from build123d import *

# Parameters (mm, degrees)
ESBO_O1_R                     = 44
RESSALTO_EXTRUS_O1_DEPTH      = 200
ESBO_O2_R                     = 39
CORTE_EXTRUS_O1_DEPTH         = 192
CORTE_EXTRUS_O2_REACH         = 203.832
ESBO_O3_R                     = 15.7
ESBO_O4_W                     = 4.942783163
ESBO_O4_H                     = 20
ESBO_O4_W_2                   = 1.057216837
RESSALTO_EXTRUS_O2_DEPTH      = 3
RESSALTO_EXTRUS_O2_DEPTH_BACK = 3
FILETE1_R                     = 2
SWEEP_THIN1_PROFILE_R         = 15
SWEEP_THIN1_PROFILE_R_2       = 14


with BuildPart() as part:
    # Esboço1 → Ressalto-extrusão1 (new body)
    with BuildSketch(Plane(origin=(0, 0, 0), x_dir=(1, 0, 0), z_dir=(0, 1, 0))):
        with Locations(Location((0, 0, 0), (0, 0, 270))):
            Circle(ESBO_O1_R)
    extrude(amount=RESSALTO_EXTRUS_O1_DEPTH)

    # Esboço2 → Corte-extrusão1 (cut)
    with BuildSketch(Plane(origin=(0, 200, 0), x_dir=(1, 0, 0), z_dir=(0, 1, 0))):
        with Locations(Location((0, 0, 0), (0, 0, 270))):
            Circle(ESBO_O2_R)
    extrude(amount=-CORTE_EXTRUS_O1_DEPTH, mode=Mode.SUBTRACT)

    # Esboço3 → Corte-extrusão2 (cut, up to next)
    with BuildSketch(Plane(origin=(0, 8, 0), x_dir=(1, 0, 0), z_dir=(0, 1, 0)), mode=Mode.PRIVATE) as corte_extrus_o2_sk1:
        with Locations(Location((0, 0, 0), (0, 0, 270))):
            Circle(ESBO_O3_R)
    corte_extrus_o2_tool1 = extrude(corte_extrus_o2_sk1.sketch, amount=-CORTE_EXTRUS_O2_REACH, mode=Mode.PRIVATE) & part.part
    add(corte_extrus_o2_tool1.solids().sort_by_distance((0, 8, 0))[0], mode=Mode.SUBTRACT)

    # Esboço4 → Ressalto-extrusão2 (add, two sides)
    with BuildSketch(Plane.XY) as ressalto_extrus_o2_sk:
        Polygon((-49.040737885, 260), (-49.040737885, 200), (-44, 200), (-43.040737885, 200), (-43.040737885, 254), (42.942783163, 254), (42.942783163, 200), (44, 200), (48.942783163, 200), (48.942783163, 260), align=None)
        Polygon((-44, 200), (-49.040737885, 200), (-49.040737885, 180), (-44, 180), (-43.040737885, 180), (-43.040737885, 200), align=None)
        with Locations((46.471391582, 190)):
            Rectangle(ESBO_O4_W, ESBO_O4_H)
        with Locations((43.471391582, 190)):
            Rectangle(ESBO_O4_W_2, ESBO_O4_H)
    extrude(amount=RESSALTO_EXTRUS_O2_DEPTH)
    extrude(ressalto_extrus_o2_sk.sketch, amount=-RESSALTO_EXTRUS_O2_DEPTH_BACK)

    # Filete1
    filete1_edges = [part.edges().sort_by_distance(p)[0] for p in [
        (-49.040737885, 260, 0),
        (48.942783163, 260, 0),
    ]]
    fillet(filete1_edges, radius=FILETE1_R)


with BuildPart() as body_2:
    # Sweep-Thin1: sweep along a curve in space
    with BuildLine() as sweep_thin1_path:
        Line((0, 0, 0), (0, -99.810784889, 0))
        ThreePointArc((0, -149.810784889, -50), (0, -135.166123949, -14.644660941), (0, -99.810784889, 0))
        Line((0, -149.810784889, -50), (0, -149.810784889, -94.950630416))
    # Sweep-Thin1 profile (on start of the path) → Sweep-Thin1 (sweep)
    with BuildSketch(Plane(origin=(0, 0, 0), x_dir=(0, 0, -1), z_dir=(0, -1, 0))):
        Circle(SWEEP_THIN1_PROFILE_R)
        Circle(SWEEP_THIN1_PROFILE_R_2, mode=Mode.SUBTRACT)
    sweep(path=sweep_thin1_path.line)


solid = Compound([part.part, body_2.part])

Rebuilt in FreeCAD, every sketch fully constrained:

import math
import FreeCAD as App
import Part
import Sketcher


def edges_at(feature, points):
    """Names of the edges that pass closest to the given points."""
    edges = feature.Shape.Edges
    near = lambda p: min(range(len(edges)), key=lambda i: edges[i].distToShape(Part.Vertex(*p))[0])
    return sorted({f"Edge{near(p) + 1}" for p in points})


def add_polygon(sketch, points):
    """Adds a closed chain of lines whose ends are joined by coincident constraints."""
    first, n = sketch.GeometryCount, len(points)
    for a, b in zip(points, points[1:] + points[:1]):
        sketch.addGeometry(Part.LineSegment(App.Vector(*a, 0), App.Vector(*b, 0)), False)
    for i in range(n):
        sketch.addConstraint(Sketcher.Constraint("Coincident", first + i, 2, first + (i + 1) % n, 1))

doc = App.newDocument("Part")
body = doc.addObject("PartDesign::Body", "Body")

# Sketch on XZ plane
sketch1 = body.newObject("Sketcher::SketchObject", "Sketch")
sketch1.AttachmentSupport = (doc.getObject("XZ_Plane"), [""])
sketch1.MapMode = "FlatFace"
sketch1.addGeometry(Part.Circle(App.Vector(0, 0, 0), App.Vector(0, 0, 1), 44), False)
sketch1.addConstraint([
    Sketcher.Constraint("Coincident", 0, 3, -1, 1),
    Sketcher.Constraint("Diameter", 0, 88.0),
])
pad1 = body.newObject("PartDesign::Pad", "Pad")
pad1.Profile = sketch1
pad1.Length = 200
pad1.Reversed = True

# Sketch on XZ plane
sketch2 = body.newObject("Sketcher::SketchObject", "Sketch001")
sketch2.AttachmentSupport = (doc.getObject("XZ_Plane"), [""])
sketch2.MapMode = "FlatFace"
sketch2.AttachmentOffset = App.Placement(App.Vector(0, 0, -200), App.Rotation())
sketch2.addGeometry(Part.Circle(App.Vector(0, 0, 0), App.Vector(0, 0, 1), 39), False)
sketch2.addConstraint([
    Sketcher.Constraint("Coincident", 0, 3, -1, 1),
    Sketcher.Constraint("Diameter", 0, 78.0),
])
pocket1 = body.newObject("PartDesign::Pocket", "Pocket")
pocket1.Profile = sketch2
pocket1.Length = 192
pocket1.Reversed = True

# Sketch on XZ plane
sketch3 = body.newObject("Sketcher::SketchObject", "Sketch002")
sketch3.AttachmentSupport = (doc.getObject("XZ_Plane"), [""])
sketch3.MapMode = "FlatFace"
sketch3.AttachmentOffset = App.Placement(App.Vector(0, 0, -8), App.Rotation())
sketch3.addGeometry(Part.Circle(App.Vector(0, 0, 0), App.Vector(0, 0, 1), 16), False)
sketch3.addConstraint([
    Sketcher.Constraint("Coincident", 0, 3, -1, 1),
    Sketcher.Constraint("Diameter", 0, 31.4),
])
pocket2 = body.newObject("PartDesign::Pocket", "Pocket001")
pocket2.Profile = sketch3
pocket2.Type = "UpToFirst"
pocket2.Reversed = True

# Sketch on XY plane
sketch4 = body.newObject("Sketcher::SketchObject", "Sketch003")
sketch4.AttachmentSupport = (doc.getObject("XY_Plane"), [""])
sketch4.MapMode = "FlatFace"
add_polygon(sketch4, [(-49, 260), (-49, 180), (-43, 180), (-43, 254), (43, 254), (43, 200), (43, 180), (49, 180), (49, 200), (49, 260)])  # lines 0-9
sketch4.addConstraint([
    Sketcher.Constraint("Vertical", 0),
    Sketcher.Constraint("Horizontal", 1),
    Sketcher.Constraint("Vertical", 2),
    Sketcher.Constraint("Horizontal", 3),
    Sketcher.Constraint("Vertical", 4),
    Sketcher.Constraint("Vertical", 5),
    Sketcher.Constraint("Horizontal", 6),
    Sketcher.Constraint("Vertical", 7),
    Sketcher.Constraint("Vertical", 8),
    Sketcher.Constraint("Horizontal", 9),
    Sketcher.Constraint("Horizontal", 1, 2, 5, 2),
    Sketcher.Constraint("Horizontal", 4, 2, 7, 2),
    Sketcher.Constraint("Equal", 1, 6),
    Sketcher.Constraint("DistanceX", 1, 1, 1, 2, 6.0),
    Sketcher.Constraint("DistanceY", 0, 2, 0, 1, 80.0),
    Sketcher.Constraint("DistanceY", 2, 1, 2, 2, 74.0),
    Sketcher.Constraint("DistanceY", 4, 2, 4, 1, 54.0),
    Sketcher.Constraint("DistanceY", -1, 1, 0, 2, 180.0),
    Sketcher.Constraint("DistanceX", 3, 1, 3, 2, 85.983521),
    Sketcher.Constraint("DistanceX", 0, 2, -1, 1, 49.040738),
])
pad2 = body.newObject("PartDesign::Pad", "Pad001")
pad2.Profile = sketch4
pad2.Type = "TwoLengths"
pad2.Length = 3
pad2.Length2 = 3
doc.recompute()

fillet = body.newObject("PartDesign::Fillet", "Fillet")
fillet.Base = (pad2, edges_at(pad2, [(-49.041, 260, 0), (48.943, 260, 0)]))
fillet.Radius = 2
body2 = doc.addObject("PartDesign::Body", "Body001")

# Sketch on XZ plane
sketch5 = body2.newObject("Sketcher::SketchObject", "Sketch004")
sketch5.AttachmentSupport = (doc.getObject("XZ_Plane001"), [""])
sketch5.MapMode = "FlatFace"
sketch5.addGeometry([
    Part.Circle(App.Vector(0, 0, 0), App.Vector(0, 0, 1), 15),
    Part.Circle(App.Vector(0, 0, 0), App.Vector(0, 0, 1), 14),
], False)
sketch5.addConstraint([
    Sketcher.Constraint("Coincident", 0, 3, -1, 1),
    Sketcher.Constraint("Coincident", 1, 3, -1, 1),
    Sketcher.Constraint("Diameter", 0, 30.0),
    Sketcher.Constraint("Diameter", 1, 28.0),
])

# Sketch on YZ plane
sketch6 = body2.newObject("Sketcher::SketchObject", "Sketch005")
sketch6.AttachmentSupport = (doc.getObject("YZ_Plane001"), [""])
sketch6.MapMode = "FlatFace"
sketch6.addGeometry([
    Part.LineSegment(App.Vector(0, 0, 0), App.Vector(-100, 0, 0)),
    Part.ArcOfCircle(Part.Circle(App.Vector(-100, -50, 0), App.Vector(0, 0, 1), 50), math.radians(90), math.radians(180)),
    Part.LineSegment(App.Vector(-150, -50, 0), App.Vector(-150, -95, 0)),
], False)
sketch6.addConstraint([
    Sketcher.Constraint("Tangent", 0, 2, 1, 1),
    Sketcher.Constraint("Tangent", 1, 2, 2, 1),
    Sketcher.Constraint("Horizontal", 0),
    Sketcher.Constraint("Vertical", 2),
    Sketcher.Constraint("Coincident", 0, 1, -1, 1),
    Sketcher.Constraint("Radius", 1, 50.0),
    Sketcher.Constraint("DistanceY", 2, 2, 2, 1, 44.95063),
    Sketcher.Constraint("DistanceX", 0, 2, 0, 1, 99.810785),
])
doc.recompute()

additivepipe = body2.newObject("PartDesign::AdditivePipe", "AdditivePipe")
additivepipe.Profile = sketch5
additivepipe.Spine = (sketch6, ["Edge1", "Edge2", "Edge3"])

doc.recompute()
